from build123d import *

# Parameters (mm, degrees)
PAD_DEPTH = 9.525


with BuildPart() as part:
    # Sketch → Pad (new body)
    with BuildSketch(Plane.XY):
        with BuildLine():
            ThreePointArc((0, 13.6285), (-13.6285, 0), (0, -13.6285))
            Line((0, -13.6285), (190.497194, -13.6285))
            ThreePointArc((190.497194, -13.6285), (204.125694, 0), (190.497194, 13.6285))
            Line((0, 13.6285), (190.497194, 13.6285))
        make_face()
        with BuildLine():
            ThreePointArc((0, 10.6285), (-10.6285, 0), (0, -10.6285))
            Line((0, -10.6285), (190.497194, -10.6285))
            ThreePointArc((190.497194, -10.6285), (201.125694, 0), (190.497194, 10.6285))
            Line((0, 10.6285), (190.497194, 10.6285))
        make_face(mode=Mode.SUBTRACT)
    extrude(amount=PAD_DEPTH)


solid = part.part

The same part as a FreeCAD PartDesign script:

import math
import FreeCAD as App
import Part
import Sketcher

V = App.Vector
Q = App.Units.Quantity

doc = App.newDocument("Part")
body = doc.addObject("PartDesign::Body", "Body")

# Sketch on XY plane
sketch1 = body.newObject("Sketcher::SketchObject", "Sketch")
sketch1.AttachmentSupport = (doc.getObject("XY_Plane"), [""])
sketch1.MapMode = "FlatFace"
sketch1.addGeometry(Part.ArcOfCircle(Part.Circle(V(0, 0, 0), V(0, 0, 1), 14), math.radians(90), math.radians(270)), False)
sketch1.addGeometry(Part.LineSegment(V(0, -14, 0), V(190, -14, 0)), False)
sketch1.addGeometry(Part.ArcOfCircle(Part.Circle(V(190, 0, 0), V(0, 0, 1), 14), math.radians(-90), math.radians(90)), False)
sketch1.addGeometry(Part.LineSegment(V(190, 14, 0), V(0, 14, 0)), False)
sketch1.addGeometry(Part.ArcOfCircle(Part.Circle(V(0, 0, 0), V(0, 0, 1), 11), math.radians(90), math.radians(270)), False)
sketch1.addGeometry(Part.LineSegment(V(0, 11, 0), V(190, 11, 0)), False)
sketch1.addGeometry(Part.ArcOfCircle(Part.Circle(V(190, 0, 0), V(0, 0, 1), 11), math.radians(-90), math.radians(90)), False)
sketch1.addGeometry(Part.LineSegment(V(190, -11, 0), V(0, -11, 0)), False)
sketch1.addConstraint(Sketcher.Constraint("Tangent", 0, 2, 1, 1))
sketch1.addConstraint(Sketcher.Constraint("Tangent", 1, 2, 2, 1))
sketch1.addConstraint(Sketcher.Constraint("Tangent", 2, 2, 3, 1))
sketch1.addConstraint(Sketcher.Constraint("Tangent", 3, 2, 0, 1))
sketch1.addConstraint(Sketcher.Constraint("Tangent", 4, 1, 5, 1))
sketch1.addConstraint(Sketcher.Constraint("Tangent", 5, 2, 6, 2))
sketch1.addConstraint(Sketcher.Constraint("Tangent", 6, 1, 7, 1))
sketch1.addConstraint(Sketcher.Constraint("Tangent", 7, 2, 4, 2))
sketch1.addConstraint(Sketcher.Constraint("Horizontal", 1))
sketch1.addConstraint(Sketcher.Constraint("Horizontal", 3))
sketch1.addConstraint(Sketcher.Constraint("Horizontal", 5))
sketch1.addConstraint(Sketcher.Constraint("Horizontal", 7))
sketch1.addConstraint(Sketcher.Constraint("Coincident", 0, 3, -1, 1))
sketch1.addConstraint(Sketcher.Constraint("Coincident", 4, 3, -1, 1))
sketch1.addConstraint(Sketcher.Constraint("Vertical", 6, 3, 1, 2))
sketch1.addConstraint(Sketcher.Constraint("Radius", 0, Q("13.6285 mm")))
sketch1.addConstraint(Sketcher.Constraint("Radius", 4, Q("10.6285 mm")))
sketch1.addConstraint(Sketcher.Constraint("DistanceX", 1, 1, 1, 2, Q("190.497194 mm")))
pad1 = body.newObject("PartDesign::Pad", "Pad")
pad1.Profile = sketch1
pad1.Length = Q("0.375 in")

doc.recompute()
